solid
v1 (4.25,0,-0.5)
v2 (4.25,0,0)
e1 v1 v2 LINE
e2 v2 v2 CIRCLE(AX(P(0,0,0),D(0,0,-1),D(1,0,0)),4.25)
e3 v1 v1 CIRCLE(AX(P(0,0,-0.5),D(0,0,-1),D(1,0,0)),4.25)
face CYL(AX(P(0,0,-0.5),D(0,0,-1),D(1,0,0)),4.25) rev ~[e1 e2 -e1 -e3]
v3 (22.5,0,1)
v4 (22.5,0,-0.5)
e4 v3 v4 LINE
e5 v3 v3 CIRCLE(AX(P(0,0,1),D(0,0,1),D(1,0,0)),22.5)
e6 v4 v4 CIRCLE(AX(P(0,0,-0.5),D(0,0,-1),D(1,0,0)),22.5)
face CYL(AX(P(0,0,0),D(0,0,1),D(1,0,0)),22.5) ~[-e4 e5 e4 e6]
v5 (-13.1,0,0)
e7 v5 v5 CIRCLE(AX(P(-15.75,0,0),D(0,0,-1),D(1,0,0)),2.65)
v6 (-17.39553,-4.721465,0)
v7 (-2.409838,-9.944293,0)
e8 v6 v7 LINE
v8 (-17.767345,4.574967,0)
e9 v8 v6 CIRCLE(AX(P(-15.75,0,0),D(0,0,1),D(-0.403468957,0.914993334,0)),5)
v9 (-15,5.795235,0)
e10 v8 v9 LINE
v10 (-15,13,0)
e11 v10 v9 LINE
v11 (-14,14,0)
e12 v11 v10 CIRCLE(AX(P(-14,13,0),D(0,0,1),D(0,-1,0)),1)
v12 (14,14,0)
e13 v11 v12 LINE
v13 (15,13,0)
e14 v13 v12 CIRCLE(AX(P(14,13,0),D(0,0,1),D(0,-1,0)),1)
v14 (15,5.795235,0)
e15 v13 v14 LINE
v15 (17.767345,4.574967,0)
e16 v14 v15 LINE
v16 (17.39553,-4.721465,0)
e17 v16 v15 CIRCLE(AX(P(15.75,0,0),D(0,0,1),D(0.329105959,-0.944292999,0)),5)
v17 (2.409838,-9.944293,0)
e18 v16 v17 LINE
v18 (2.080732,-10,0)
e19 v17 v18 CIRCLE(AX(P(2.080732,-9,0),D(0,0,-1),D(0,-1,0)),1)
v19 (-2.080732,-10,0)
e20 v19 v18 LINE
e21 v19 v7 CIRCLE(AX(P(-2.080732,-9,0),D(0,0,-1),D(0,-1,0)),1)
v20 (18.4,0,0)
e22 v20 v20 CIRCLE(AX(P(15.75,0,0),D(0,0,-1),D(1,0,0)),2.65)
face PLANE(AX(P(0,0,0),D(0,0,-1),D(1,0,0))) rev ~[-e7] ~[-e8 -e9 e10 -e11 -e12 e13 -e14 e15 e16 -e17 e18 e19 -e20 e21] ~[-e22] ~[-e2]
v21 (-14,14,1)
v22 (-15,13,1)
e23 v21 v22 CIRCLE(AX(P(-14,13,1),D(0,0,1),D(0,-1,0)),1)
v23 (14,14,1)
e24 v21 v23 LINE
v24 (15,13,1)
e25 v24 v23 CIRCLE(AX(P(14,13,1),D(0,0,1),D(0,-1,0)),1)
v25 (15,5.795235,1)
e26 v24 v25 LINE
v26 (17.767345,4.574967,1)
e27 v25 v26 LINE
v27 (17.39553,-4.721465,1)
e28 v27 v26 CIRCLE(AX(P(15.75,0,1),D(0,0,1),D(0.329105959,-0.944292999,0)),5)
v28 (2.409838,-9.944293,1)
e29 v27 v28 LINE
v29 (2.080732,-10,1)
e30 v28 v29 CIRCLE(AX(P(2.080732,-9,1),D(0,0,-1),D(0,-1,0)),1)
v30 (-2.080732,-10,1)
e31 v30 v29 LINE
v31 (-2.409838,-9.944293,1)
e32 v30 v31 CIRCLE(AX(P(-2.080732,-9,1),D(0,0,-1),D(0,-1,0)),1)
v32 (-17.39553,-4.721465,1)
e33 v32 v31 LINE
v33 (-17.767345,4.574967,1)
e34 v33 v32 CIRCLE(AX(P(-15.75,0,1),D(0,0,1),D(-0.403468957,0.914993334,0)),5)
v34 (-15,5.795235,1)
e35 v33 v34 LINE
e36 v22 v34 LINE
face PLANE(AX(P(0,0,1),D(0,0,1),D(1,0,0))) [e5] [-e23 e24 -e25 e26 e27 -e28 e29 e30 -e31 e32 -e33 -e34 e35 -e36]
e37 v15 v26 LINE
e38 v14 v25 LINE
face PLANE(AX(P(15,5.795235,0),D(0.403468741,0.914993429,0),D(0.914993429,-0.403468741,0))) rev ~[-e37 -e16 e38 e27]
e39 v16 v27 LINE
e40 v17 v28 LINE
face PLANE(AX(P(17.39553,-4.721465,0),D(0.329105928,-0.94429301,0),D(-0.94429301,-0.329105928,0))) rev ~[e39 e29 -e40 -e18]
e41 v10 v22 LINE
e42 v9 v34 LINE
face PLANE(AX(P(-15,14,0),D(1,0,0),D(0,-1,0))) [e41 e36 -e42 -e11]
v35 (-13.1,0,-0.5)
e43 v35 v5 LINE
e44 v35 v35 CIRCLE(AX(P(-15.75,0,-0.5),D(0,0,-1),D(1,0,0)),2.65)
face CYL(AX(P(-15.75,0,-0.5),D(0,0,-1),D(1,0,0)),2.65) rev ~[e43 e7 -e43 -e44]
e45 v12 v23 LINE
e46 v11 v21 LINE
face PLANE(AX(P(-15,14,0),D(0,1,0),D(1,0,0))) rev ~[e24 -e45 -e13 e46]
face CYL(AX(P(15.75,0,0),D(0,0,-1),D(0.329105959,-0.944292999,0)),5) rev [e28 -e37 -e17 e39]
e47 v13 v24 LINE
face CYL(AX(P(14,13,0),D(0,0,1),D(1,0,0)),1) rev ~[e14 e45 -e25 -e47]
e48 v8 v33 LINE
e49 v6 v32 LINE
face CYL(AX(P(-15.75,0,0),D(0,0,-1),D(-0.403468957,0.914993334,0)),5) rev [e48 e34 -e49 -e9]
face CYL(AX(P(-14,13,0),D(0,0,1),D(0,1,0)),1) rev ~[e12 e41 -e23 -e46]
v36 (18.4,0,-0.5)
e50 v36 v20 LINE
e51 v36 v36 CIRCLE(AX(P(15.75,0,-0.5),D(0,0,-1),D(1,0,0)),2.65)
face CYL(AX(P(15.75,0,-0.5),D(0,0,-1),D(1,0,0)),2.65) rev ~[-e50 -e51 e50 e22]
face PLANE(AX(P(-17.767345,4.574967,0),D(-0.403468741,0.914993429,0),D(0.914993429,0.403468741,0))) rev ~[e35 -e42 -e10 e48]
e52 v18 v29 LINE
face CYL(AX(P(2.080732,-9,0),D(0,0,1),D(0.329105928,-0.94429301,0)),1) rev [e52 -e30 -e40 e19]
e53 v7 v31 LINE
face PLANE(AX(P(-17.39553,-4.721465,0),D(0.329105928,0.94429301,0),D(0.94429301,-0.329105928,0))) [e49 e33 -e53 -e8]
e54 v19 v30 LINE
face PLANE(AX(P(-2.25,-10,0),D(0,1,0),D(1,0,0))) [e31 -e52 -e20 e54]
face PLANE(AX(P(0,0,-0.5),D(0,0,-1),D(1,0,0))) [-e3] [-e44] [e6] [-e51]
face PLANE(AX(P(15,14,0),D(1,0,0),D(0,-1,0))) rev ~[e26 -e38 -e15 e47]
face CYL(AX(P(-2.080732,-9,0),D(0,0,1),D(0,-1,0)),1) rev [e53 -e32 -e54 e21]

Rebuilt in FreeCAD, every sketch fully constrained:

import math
import FreeCAD as App
import Part
import Sketcher
from FreeCAD import Vector
Q = App.Units.Quantity


def edges_at(feature, points):
    """Names of the edges that pass closest to the given points."""
    edges = feature.Shape.Edges
    near = lambda p: min(range(len(edges)), key=lambda i: edges[i].distToShape(Part.Vertex(*p))[0])
    return sorted({f"Edge{near(p) + 1}" for p in points})

doc = App.newDocument("Part")
body = doc.addObject("PartDesign::Body", "Body")

sketch1 = doc.addObject("Sketcher::SketchObject", "Sketch")
body.addObject(sketch1)
sketch1.AttachmentSupport = (doc.XY_Plane, [""])
sketch1.MapMode = "FlatFace"
sketch1.addGeometry([
    Part.Circle(Vector(0, 0, 0), Vector(0, 0, 1), 22.5),
    Part.ArcOfCircle(Part.Circle(Vector(15.8, 0, 0), Vector(0, 0, 1), 5), math.radians(-71), math.radians(66)),
    Part.LineSegment(Vector(17.4, -4.7, 0), Vector(2.2, -10, 0)),
    Part.LineSegment(Vector(2.2, -10, 0), Vector(-2.2, -10, 0)),
    Part.LineSegment(Vector(-2.2, -10, 0), Vector(-17.4, -4.7, 0)),
    Part.ArcOfCircle(Part.Circle(Vector(-15.8, 0, 0), Vector(0, 0, 1), 5), math.radians(114), math.radians(251)),
    Part.LineSegment(Vector(-17.8, 4.6, 0), Vector(-15, 5.8, 0)),
    Part.LineSegment(Vector(-15, 5.8, 0), Vector(-15, 14, 0)),
    Part.LineSegment(Vector(-15, 14, 0), Vector(15, 14, 0)),
    Part.LineSegment(Vector(15, 14, 0), Vector(15, 5.8, 0)),
    Part.LineSegment(Vector(15, 5.8, 0), Vector(17.8, 4.6, 0)),
], False)
sketch1.addConstraint([
    Sketcher.Constraint("Tangent", 1, 1, 2, 1),
    Sketcher.Constraint("Coincident", 2, 2, 3, 1),
    Sketcher.Constraint("Coincident", 3, 2, 4, 1),
    Sketcher.Constraint("Tangent", 4, 2, 5, 2),
    Sketcher.Constraint("Tangent", 5, 1, 6, 1),
    Sketcher.Constraint("Coincident", 6, 2, 7, 1),
    Sketcher.Constraint("Coincident", 7, 2, 8, 1),
    Sketcher.Constraint("Coincident", 8, 2, 9, 1),
    Sketcher.Constraint("Coincident", 9, 2, 10, 1),
    Sketcher.Constraint("Tangent", 10, 2, 1, 2),
    Sketcher.Constraint("Horizontal", 3),
    Sketcher.Constraint("Vertical", 7),
    Sketcher.Constraint("Horizontal", 8),
    Sketcher.Constraint("Vertical", 9),
    Sketcher.Constraint("Coincident", 0, 3, -1, 1),
    Sketcher.Constraint("Equal", 1, 5),
    Sketcher.Constraint("Symmetric", 1, 3, 5, 3, -1, 1),
    Sketcher.Constraint("Symmetric", 1, 1, 4, 2, -2),
    Sketcher.Constraint("Symmetric", 6, 2, 9, 2, -2),
    Sketcher.Constraint("Diameter", 0, Q("45 mm")),
    Sketcher.Constraint("Radius", 1, Q("5 mm")),
    Sketcher.Constraint("DistanceX", 8, 1, 8, 2, Q("30 mm")),
    Sketcher.Constraint("DistanceX", 3, 2, 3, 1, Q("4.5 mm")),
    Sketcher.Constraint("DistanceY", 2, 2, -1, 1, Q("10 mm")),
    Sketcher.Constraint("DistanceY", -1, 1, 7, 2, Q("14 mm")),
    Sketcher.Constraint("DistanceX", 5, 3, 2, 2, Q("18 mm")),
    Sketcher.Constraint("DistanceY", 4, 2, 6, 2, Q("10.5167 mm")),
])
pad1 = doc.addObject("PartDesign::Pad", "Pad")
body.addObject(pad1)
pad1.Profile = sketch1
pad1.Length = 1

sketch2 = doc.addObject("Sketcher::SketchObject", "Sketch001")
body.addObject(sketch2)
sketch2.AttachmentSupport = (doc.XY_Plane, [""])
sketch2.MapMode = "FlatFace"
sketch2.addGeometry(Part.Circle(Vector(0, 0, 0), Vector(0, 0, 1), 22), False)
sketch2.addConstraint([
    Sketcher.Constraint("Coincident", 0, 3, -1, 1),
    Sketcher.Constraint("Diameter", 0, Q("45 mm")),
])
pad2 = doc.addObject("PartDesign::Pad", "Pad001")
body.addObject(pad2)
pad2.Profile = sketch2
pad2.Length = 0.5
pad2.Reversed = True

sketch3 = doc.addObject("Sketcher::SketchObject", "Sketch002")
body.addObject(sketch3)
sketch3.AttachmentSupport = (doc.XY_Plane, [""])
sketch3.MapMode = "FlatFace"
sketch3.AttachmentOffset = App.Placement(Vector(0, 0, -0.5), App.Rotation())
sketch3.addGeometry([
    Part.Circle(Vector(0, 0, 0), Vector(0, 0, 1), 4.2),
    Part.Circle(Vector(-15.8, 0, 0), Vector(0, 0, 1), 2.6),
    Part.Circle(Vector(15.8, 0, 0), Vector(0, 0, 1), 2.6),
], False)
sketch3.addConstraint([
    Sketcher.Constraint("Coincident", 0, 3, -1, 1),
    Sketcher.Constraint("Equal", 1, 2),
    Sketcher.Constraint("Symmetric", 1, 3, 2, 3, -1, 1),
    Sketcher.Constraint("PointOnObject", 1, 3, -1),
    Sketcher.Constraint("Diameter", 0, Q("8.5 mm")),
    Sketcher.Constraint("Diameter", 1, Q("5.3 mm")),
    Sketcher.Constraint("DistanceX", 1, 3, 2, 3, Q("31.5 mm")),
])
pocket1 = doc.addObject("PartDesign::Pocket", "Pocket")
body.addObject(pocket1)
pocket1.Profile = sketch3
pocket1.Type = "ThroughAll"
pocket1.Reversed = True
doc.recompute()

fillet = doc.addObject("PartDesign::Fillet", "Fillet")
body.addObject(fillet)
fillet.Base = (pocket1, edges_at(pocket1, [(15, 14, 0.5), (-15, 14, 0.5)]))
fillet.Radius = 1
doc.recompute()

fillet2 = doc.addObject("PartDesign::Fillet", "Fillet001")
body.addObject(fillet2)
fillet2.Base = (fillet, edges_at(fillet, [(-2.25, -10, 0.5), (2.25, -10, 0.5)]))
fillet2.Radius = 1

doc.recompute()
